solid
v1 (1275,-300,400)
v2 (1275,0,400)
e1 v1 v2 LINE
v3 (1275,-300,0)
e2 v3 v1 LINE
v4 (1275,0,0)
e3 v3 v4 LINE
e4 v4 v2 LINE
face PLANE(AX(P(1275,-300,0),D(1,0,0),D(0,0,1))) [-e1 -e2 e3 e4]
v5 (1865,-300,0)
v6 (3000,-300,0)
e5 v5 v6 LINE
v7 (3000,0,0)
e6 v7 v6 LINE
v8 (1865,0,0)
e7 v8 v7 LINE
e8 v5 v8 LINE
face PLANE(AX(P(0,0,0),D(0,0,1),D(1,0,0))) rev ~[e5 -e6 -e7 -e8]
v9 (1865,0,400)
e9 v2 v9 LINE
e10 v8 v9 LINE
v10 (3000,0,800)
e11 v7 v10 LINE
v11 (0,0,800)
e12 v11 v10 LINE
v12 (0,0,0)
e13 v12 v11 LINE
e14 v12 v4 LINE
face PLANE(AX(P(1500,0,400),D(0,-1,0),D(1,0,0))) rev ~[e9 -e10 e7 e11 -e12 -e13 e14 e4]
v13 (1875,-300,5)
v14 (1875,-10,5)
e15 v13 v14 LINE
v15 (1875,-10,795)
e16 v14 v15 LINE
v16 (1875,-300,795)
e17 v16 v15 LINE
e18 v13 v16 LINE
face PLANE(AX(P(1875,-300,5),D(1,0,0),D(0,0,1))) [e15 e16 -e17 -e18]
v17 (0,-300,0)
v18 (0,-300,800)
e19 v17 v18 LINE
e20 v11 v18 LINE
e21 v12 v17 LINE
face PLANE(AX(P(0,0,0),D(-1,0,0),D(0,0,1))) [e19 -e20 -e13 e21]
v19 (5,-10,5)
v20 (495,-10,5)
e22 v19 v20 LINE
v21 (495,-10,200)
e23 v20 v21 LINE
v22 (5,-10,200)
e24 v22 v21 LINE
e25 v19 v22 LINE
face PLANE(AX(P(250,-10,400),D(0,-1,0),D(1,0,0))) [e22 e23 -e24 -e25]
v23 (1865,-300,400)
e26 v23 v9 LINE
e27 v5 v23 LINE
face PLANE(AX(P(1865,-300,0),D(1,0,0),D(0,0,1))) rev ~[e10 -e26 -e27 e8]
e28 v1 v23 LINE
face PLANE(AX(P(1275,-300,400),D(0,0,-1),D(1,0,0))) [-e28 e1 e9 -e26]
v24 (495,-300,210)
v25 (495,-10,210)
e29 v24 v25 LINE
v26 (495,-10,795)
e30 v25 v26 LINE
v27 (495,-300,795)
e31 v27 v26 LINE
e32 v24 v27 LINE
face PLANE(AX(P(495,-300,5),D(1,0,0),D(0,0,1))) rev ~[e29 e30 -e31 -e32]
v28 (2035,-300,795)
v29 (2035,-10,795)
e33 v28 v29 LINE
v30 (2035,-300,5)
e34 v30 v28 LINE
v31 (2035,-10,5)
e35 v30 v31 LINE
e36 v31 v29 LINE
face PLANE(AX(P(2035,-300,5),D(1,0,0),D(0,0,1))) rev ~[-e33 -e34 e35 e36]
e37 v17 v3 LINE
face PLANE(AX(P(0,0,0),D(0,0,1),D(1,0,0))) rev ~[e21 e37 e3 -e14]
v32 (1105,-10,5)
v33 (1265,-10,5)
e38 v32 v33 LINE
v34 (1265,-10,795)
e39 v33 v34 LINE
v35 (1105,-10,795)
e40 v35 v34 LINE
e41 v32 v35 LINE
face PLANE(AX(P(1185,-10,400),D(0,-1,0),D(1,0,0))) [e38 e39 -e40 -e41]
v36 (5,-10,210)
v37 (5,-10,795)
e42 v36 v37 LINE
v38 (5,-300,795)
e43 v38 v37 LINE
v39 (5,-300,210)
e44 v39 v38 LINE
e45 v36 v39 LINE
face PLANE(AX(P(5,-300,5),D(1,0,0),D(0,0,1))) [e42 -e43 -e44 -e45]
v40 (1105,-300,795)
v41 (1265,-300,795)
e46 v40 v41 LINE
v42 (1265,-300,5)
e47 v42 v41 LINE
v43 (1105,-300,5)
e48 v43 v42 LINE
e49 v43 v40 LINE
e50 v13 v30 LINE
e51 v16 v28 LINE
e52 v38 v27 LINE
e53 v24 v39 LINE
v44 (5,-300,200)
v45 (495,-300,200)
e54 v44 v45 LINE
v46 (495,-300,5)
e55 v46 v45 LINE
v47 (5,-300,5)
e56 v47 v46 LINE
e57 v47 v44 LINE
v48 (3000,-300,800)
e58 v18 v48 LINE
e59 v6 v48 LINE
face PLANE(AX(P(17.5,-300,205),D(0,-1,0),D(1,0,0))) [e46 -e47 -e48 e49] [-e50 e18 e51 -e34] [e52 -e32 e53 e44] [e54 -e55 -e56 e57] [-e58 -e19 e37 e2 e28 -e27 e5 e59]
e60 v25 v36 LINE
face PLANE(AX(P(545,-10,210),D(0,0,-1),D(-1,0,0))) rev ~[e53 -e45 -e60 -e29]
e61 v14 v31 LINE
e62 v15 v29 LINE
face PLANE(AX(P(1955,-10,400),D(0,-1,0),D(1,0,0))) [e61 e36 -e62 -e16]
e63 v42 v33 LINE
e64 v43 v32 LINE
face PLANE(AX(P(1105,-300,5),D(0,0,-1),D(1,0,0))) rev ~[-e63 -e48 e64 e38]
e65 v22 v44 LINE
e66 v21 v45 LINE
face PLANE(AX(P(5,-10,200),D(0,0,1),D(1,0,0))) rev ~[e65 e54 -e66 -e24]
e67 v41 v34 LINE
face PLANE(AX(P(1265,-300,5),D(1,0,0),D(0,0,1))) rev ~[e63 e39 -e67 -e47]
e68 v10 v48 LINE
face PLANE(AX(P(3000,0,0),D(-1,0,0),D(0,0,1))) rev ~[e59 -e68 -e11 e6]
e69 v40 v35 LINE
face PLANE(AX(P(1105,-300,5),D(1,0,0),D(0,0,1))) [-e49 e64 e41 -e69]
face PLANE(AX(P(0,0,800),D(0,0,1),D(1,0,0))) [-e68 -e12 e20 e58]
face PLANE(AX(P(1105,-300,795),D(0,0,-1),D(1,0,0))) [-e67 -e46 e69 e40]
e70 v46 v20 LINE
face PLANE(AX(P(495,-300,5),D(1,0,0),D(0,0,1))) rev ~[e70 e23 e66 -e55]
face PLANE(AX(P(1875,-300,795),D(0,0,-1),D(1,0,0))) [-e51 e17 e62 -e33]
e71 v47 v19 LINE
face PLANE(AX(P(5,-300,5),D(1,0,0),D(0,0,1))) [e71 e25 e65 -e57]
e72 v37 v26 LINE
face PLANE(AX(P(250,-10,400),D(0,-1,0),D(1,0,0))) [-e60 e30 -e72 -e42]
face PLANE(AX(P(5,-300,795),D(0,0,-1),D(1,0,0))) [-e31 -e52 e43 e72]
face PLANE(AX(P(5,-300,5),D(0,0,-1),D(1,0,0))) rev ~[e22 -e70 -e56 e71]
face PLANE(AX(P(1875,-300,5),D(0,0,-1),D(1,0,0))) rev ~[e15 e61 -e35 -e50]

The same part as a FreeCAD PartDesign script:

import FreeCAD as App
import Part
import Sketcher

doc = App.newDocument("Part")
body = doc.addObject("PartDesign::Body", "Body")

sketch1 = body.newObject("Sketcher::SketchObject", "Sketch")
sketch1.AttachmentSupport = (doc.getObject("XZ_Plane"), [""])
sketch1.MapMode = "FlatFace"
sketch1.addGeometry(Part.LineSegment(App.Vector(0, 800, 0), App.Vector(0, 0, 0)), False)
sketch1.addGeometry(Part.LineSegment(App.Vector(0, 0, 0), App.Vector(3000, 0, 0)), False)
sketch1.addGeometry(Part.LineSegment(App.Vector(3000, 0, 0), App.Vector(3000, 800, 0)), False)
sketch1.addGeometry(Part.LineSegment(App.Vector(3000, 800, 0), App.Vector(0, 800, 0)), False)
sketch1.addConstraint(Sketcher.Constraint("Coincident", 0, 2, 1, 1))
sketch1.addConstraint(Sketcher.Constraint("Coincident", 1, 2, 2, 1))
sketch1.addConstraint(Sketcher.Constraint("Coincident", 2, 2, 3, 1))
sketch1.addConstraint(Sketcher.Constraint("Coincident", 3, 2, 0, 1))
sketch1.addConstraint(Sketcher.Constraint("Vertical", 0))
sketch1.addConstraint(Sketcher.Constraint("Horizontal", 1))
sketch1.addConstraint(Sketcher.Constraint("Vertical", 2))
sketch1.addConstraint(Sketcher.Constraint("Horizontal", 3))
sketch1.addConstraint(Sketcher.Constraint("Coincident", 0, 2, -1, 1))
sketch1.addConstraint(Sketcher.Constraint("DistanceX", 1, 1, 1, 2, 3000.0))
sketch1.addConstraint(Sketcher.Constraint("DistanceY", 0, 2, 0, 1, 800.0))
pad1 = body.newObject("PartDesign::Pad", "Pad")
pad1.Profile = sketch1
pad1.Length = 300

sketch2 = body.newObject("Sketcher::SketchObject", "Sketch001")
sketch2.AttachmentSupport = (doc.getObject("XZ_Plane"), [""])
sketch2.MapMode = "FlatFace"
sketch2.AttachmentOffset = App.Placement(App.Vector(0, 0, 300), App.Rotation())
sketch2.addGeometry(Part.LineSegment(App.Vector(5, 795, 0), App.Vector(5, 5, 0)), False)
sketch2.addGeometry(Part.LineSegment(App.Vector(5, 5, 0), App.Vector(495, 5, 0)), False)
sketch2.addGeometry(Part.LineSegment(App.Vector(495, 5, 0), App.Vector(495, 795, 0)), False)
sketch2.addGeometry(Part.LineSegment(App.Vector(495, 795, 0), App.Vector(5, 795, 0)), False)
sketch2.addConstraint(Sketcher.Constraint("Coincident", 0, 2, 1, 1))
sketch2.addConstraint(Sketcher.Constraint("Coincident", 1, 2, 2, 1))
sketch2.addConstraint(Sketcher.Constraint("Coincident", 2, 2, 3, 1))
sketch2.addConstraint(Sketcher.Constraint("Coincident", 3, 2, 0, 1))
sketch2.addConstraint(Sketcher.Constraint("Vertical", 0))
sketch2.addConstraint(Sketcher.Constraint("Horizontal", 1))
sketch2.addConstraint(Sketcher.Constraint("Vertical", 2))
sketch2.addConstraint(Sketcher.Constraint("Horizontal", 3))
sketch2.addConstraint(Sketcher.Constraint("DistanceX", 1, 1, 1, 2, 490.0))
sketch2.addConstraint(Sketcher.Constraint("DistanceY", 0, 2, 0, 1, 790.0))
sketch2.addConstraint(Sketcher.Constraint("DistanceX", -1, 1, 0, 2, 5.0))
sketch2.addConstraint(Sketcher.Constraint("DistanceY", -1, 1, 0, 2, 5.0))
pocket1 = body.newObject("PartDesign::Pocket", "Pocket")
pocket1.Profile = sketch2
pocket1.Length = 290

sketch3 = body.newObject("Sketcher::SketchObject", "Sketch002")
sketch3.AttachmentSupport = (doc.getObject("XZ_Plane"), [""])
sketch3.MapMode = "FlatFace"
sketch3.AttachmentOffset = App.Placement(App.Vector(0, 0, 300), App.Rotation())
sketch3.addGeometry(Part.LineSegment(App.Vector(1105, 795, 0), App.Vector(1105, 5, 0)), False)
sketch3.addGeometry(Part.LineSegment(App.Vector(1105, 5, 0), App.Vector(1265, 5, 0)), False)
sketch3.addGeometry(Part.LineSegment(App.Vector(1265, 5, 0), App.Vector(1265, 795, 0)), False)
sketch3.addGeometry(Part.LineSegment(App.Vector(1265, 795, 0), App.Vector(1105, 795, 0)), False)
sketch3.addGeometry(Part.LineSegment(App.Vector(1875, 795, 0), App.Vector(1875, 5, 0)), False)
sketch3.addGeometry(Part.LineSegment(App.Vector(1875, 5, 0), App.Vector(2035, 5, 0)), False)
sketch3.addGeometry(Part.LineSegment(App.Vector(2035, 5, 0), App.Vector(2035, 795, 0)), False)
sketch3.addGeometry(Part.LineSegment(App.Vector(2035, 795, 0), App.Vector(1875, 795, 0)), False)
sketch3.addConstraint(Sketcher.Constraint("Coincident", 0, 2, 1, 1))
sketch3.addConstraint(Sketcher.Constraint("Coincident", 1, 2, 2, 1))
sketch3.addConstraint(Sketcher.Constraint("Coincident", 2, 2, 3, 1))
sketch3.addConstraint(Sketcher.Constraint("Coincident", 3, 2, 0, 1))
sketch3.addConstraint(Sketcher.Constraint("Coincident", 4, 2, 5, 1))
sketch3.addConstraint(Sketcher.Constraint("Coincident", 5, 2, 6, 1))
sketch3.addConstraint(Sketcher.Constraint("Coincident", 6, 2, 7, 1))
sketch3.addConstraint(Sketcher.Constraint("Coincident", 7, 2, 4, 1))
sketch3.addConstraint(Sketcher.Constraint("Vertical", 0))
sketch3.addConstraint(Sketcher.Constraint("Horizontal", 1))
sketch3.addConstraint(Sketcher.Constraint("Vertical", 2))
sketch3.addConstraint(Sketcher.Constraint("Horizontal", 3))
sketch3.addConstraint(Sketcher.Constraint("Vertical", 4))
sketch3.addConstraint(Sketcher.Constraint("Horizontal", 5))
sketch3.addConstraint(Sketcher.Constraint("Vertical", 6))
sketch3.addConstraint(Sketcher.Constraint("Horizontal", 7))
sketch3.addConstraint(Sketcher.Constraint("Horizontal", 1, 2, 4, 2))
sketch3.addConstraint(Sketcher.Constraint("Horizontal", 3, 2, 6, 2))
sketch3.addConstraint(Sketcher.Constraint("Equal", 3, 5))
sketch3.addConstraint(Sketcher.Constraint("DistanceX", 1, 1, 1, 2, 160.0))
sketch3.addConstraint(Sketcher.Constraint("DistanceY", 0, 2, 0, 1, 790.0))
sketch3.addConstraint(Sketcher.Constraint("DistanceX", -1, 1, 0, 2, 1105.0))
sketch3.addConstraint(Sketcher.Constraint("DistanceY", -1, 1, 0, 2, 5.0))
sketch3.addConstraint(Sketcher.Constraint("DistanceX", -1, 1, 4, 2, 1875.0))
pocket2 = body.newObject("PartDesign::Pocket", "Pocket001")
pocket2.Profile = sketch3
pocket2.Length = 290

sketch4 = body.newObject("Sketcher::SketchObject", "Sketch003")
sketch4.AttachmentSupport = (doc.getObject("XZ_Plane"), [""])
sketch4.MapMode = "FlatFace"
sketch4.AttachmentOffset = App.Placement(App.Vector(0, 0, 300), App.Rotation())
sketch4.addGeometry(Part.LineSegment(App.Vector(1275, 400, 0), App.Vector(1275, 0, 0)), False)
sketch4.addGeometry(Part.LineSegment(App.Vector(1275, 0, 0), App.Vector(1865, 0, 0)), False)
sketch4.addGeometry(Part.LineSegment(App.Vector(1865, 0, 0), App.Vector(1865, 400, 0)), False)
sketch4.addGeometry(Part.LineSegment(App.Vector(1865, 400, 0), App.Vector(1275, 400, 0)), False)
sketch4.addConstraint(Sketcher.Constraint("Coincident", 0, 2, 1, 1))
sketch4.addConstraint(Sketcher.Constraint("Coincident", 1, 2, 2, 1))
sketch4.addConstraint(Sketcher.Constraint("Coincident", 2, 2, 3, 1))
sketch4.addConstraint(Sketcher.Constraint("Coincident", 3, 2, 0, 1))
sketch4.addConstraint(Sketcher.Constraint("Vertical", 0))
sketch4.addConstraint(Sketcher.Constraint("Horizontal", 1))
sketch4.addConstraint(Sketcher.Constraint("Vertical", 2))
sketch4.addConstraint(Sketcher.Constraint("Horizontal", 3))
sketch4.addConstraint(Sketcher.Constraint("PointOnObject", 0, 2, -1))
sketch4.addConstraint(Sketcher.Constraint("DistanceX", 1, 1, 1, 2, 590.0))
sketch4.addConstraint(Sketcher.Constraint("DistanceY", 0, 2, 0, 1, 400.0))
sketch4.addConstraint(Sketcher.Constraint("DistanceX", -1, 1, 0, 2, 1275.0))
pocket3 = body.newObject("PartDesign::Pocket", "Pocket002")
pocket3.Profile = sketch4
pocket3.Type = "ThroughAll"

sketch5 = body.newObject("Sketcher::SketchObject", "Sketch004")
sketch5.AttachmentSupport = (doc.getObject("XZ_Plane"), [""])
sketch5.MapMode = "FlatFace"
sketch5.AttachmentOffset = App.Placement(App.Vector(0, 0, 10), App.Rotation())
sketch5.addGeometry(Part.LineSegment(App.Vector(5, 210, 0), App.Vector(5, 200, 0)), False)
sketch5.addGeometry(Part.LineSegment(App.Vector(5, 200, 0), App.Vector(545, 200, 0)), False)
sketch5.addGeometry(Part.LineSegment(App.Vector(545, 200, 0), App.Vector(545, 210, 0)), False)
sketch5.addGeometry(Part.LineSegment(App.Vector(545, 210, 0), App.Vector(5, 210, 0)), False)
sketch5.addConstraint(Sketcher.Constraint("Coincident", 0, 2, 1, 1))
sketch5.addConstraint(Sketcher.Constraint("Coincident", 1, 2, 2, 1))
sketch5.addConstraint(Sketcher.Constraint("Coincident", 2, 2, 3, 1))
sketch5.addConstraint(Sketcher.Constraint("Coincident", 3, 2, 0, 1))
sketch5.addConstraint(Sketcher.Constraint("Vertical", 0))
sketch5.addConstraint(Sketcher.Constraint("Horizontal", 1))
sketch5.addConstraint(Sketcher.Constraint("Vertical", 2))
sketch5.addConstraint(Sketcher.Constraint("Horizontal", 3))
sketch5.addConstraint(Sketcher.Constraint("DistanceX", 1, 1, 1, 2, 540.0))
sketch5.addConstraint(Sketcher.Constraint("DistanceY", 0, 2, 0, 1, 10.0))
sketch5.addConstraint(Sketcher.Constraint("DistanceX", -1, 1, 0, 2, 5.0))
sketch5.addConstraint(Sketcher.Constraint("DistanceY", -1, 1, 0, 2, 200.0))
pad2 = body.newObject("PartDesign::Pad", "Pad001")
pad2.Profile = sketch5
pad2.Length = 290

doc.recompute()
